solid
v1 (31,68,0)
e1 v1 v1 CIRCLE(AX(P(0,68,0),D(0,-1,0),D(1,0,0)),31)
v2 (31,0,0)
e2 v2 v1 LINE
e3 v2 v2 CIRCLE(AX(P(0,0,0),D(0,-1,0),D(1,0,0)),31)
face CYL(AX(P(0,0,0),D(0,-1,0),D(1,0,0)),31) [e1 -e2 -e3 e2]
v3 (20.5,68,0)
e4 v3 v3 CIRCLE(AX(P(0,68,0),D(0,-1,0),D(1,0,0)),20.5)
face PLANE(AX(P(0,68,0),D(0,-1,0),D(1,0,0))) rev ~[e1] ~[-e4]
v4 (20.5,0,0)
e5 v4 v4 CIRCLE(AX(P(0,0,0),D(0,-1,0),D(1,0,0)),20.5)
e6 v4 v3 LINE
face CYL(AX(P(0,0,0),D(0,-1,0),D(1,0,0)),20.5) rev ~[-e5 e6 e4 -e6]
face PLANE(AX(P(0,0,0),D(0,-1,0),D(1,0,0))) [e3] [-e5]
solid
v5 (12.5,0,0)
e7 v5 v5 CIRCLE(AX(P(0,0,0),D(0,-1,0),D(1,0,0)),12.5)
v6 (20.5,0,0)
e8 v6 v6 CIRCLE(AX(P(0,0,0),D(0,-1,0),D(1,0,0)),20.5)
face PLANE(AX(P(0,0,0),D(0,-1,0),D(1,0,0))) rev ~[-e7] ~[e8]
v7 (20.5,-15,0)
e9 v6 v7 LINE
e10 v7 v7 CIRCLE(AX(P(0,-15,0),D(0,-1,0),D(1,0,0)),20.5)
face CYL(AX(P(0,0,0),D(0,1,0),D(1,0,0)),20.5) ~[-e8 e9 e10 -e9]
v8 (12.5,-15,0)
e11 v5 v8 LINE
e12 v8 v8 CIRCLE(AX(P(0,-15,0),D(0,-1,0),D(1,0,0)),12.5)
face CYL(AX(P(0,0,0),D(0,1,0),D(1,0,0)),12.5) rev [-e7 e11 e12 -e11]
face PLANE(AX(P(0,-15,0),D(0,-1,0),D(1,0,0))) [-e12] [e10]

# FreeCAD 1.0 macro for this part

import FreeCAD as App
import Part
import Sketcher
Q = App.Units.Quantity

doc = App.newDocument("Part")
params = doc.addObject("Spreadsheet::Sheet", "Params")
for row, (alias, value) in enumerate([
    ("sketch1_diameter", "62 mm"),
    ("sketch1_diameter2", "41 mm"),
    ("pad1_length", "68 mm"),
    ("sketch2_diameter", "41 mm"),
    ("sketch2_diameter2", "25 mm"),
    ("pad2_length", "15 mm"),
], start=1):
    params.set(f"A{row}", alias)
    params.set(f"B{row}", "=" + value)
    params.setAlias(f"B{row}", alias)

body = doc.addObject("PartDesign::Body", "Body")
body.AllowCompound = True

# Sketch on XZ plane
sketch1 = doc.addObject("Sketcher::SketchObject", "Sketch")
body.addObject(sketch1)
sketch1.AttachmentSupport = (doc.XZ_Plane, [""])
sketch1.MapMode = "FlatFace"
sketch1.addGeometry([
    Part.Circle(App.Vector(0, 0, 0), App.Vector(0, 0, 1), 31),
    Part.Circle(App.Vector(0, 0, 0), App.Vector(0, 0, 1), 20.5),
], False)
sketch1.addConstraint([
    Sketcher.Constraint("Coincident", 0, 3, -1, 1),
    Sketcher.Constraint("Coincident", 1, 3, -1, 1),
    Sketcher.Constraint("Diameter", 0, Q("62 mm")),
    Sketcher.Constraint("Diameter", 1, Q("41 mm")),
])
sketch1.setExpression("Constraints[2]", "Params.sketch1_diameter")
sketch1.setExpression("Constraints[3]", "Params.sketch1_diameter2")
pad1 = doc.addObject("PartDesign::Pad", "Pad")
body.addObject(pad1)
pad1.Profile = sketch1
pad1.setExpression("Length", "Params.pad1_length")
pad1.Reversed = True

# Sketch on XZ plane
sketch2 = doc.addObject("Sketcher::SketchObject", "Sketch001")
body.addObject(sketch2)
sketch2.AttachmentSupport = (doc.XZ_Plane, [""])
sketch2.MapMode = "FlatFace"
sketch2.addGeometry([
    Part.Circle(App.Vector(0, 0, 0), App.Vector(0, 0, 1), 20.5),
    Part.Circle(App.Vector(0, 0, 0), App.Vector(0, 0, 1), 12.5),
], False)
sketch2.addConstraint([
    Sketcher.Constraint("Coincident", 0, 3, -1, 1),
    Sketcher.Constraint("Coincident", 1, 3, -1, 1),
    Sketcher.Constraint("Diameter", 0, Q("41 mm")),
    Sketcher.Constraint("Diameter", 1, Q("25 mm")),
])
sketch2.setExpression("Constraints[2]", "Params.sketch2_diameter")
sketch2.setExpression("Constraints[3]", "Params.sketch2_diameter2")
pad2 = doc.addObject("PartDesign::Pad", "Pad001")
body.addObject(pad2)
pad2.Profile = sketch2
pad2.setExpression("Length", "Params.pad2_length")

doc.recompute()
